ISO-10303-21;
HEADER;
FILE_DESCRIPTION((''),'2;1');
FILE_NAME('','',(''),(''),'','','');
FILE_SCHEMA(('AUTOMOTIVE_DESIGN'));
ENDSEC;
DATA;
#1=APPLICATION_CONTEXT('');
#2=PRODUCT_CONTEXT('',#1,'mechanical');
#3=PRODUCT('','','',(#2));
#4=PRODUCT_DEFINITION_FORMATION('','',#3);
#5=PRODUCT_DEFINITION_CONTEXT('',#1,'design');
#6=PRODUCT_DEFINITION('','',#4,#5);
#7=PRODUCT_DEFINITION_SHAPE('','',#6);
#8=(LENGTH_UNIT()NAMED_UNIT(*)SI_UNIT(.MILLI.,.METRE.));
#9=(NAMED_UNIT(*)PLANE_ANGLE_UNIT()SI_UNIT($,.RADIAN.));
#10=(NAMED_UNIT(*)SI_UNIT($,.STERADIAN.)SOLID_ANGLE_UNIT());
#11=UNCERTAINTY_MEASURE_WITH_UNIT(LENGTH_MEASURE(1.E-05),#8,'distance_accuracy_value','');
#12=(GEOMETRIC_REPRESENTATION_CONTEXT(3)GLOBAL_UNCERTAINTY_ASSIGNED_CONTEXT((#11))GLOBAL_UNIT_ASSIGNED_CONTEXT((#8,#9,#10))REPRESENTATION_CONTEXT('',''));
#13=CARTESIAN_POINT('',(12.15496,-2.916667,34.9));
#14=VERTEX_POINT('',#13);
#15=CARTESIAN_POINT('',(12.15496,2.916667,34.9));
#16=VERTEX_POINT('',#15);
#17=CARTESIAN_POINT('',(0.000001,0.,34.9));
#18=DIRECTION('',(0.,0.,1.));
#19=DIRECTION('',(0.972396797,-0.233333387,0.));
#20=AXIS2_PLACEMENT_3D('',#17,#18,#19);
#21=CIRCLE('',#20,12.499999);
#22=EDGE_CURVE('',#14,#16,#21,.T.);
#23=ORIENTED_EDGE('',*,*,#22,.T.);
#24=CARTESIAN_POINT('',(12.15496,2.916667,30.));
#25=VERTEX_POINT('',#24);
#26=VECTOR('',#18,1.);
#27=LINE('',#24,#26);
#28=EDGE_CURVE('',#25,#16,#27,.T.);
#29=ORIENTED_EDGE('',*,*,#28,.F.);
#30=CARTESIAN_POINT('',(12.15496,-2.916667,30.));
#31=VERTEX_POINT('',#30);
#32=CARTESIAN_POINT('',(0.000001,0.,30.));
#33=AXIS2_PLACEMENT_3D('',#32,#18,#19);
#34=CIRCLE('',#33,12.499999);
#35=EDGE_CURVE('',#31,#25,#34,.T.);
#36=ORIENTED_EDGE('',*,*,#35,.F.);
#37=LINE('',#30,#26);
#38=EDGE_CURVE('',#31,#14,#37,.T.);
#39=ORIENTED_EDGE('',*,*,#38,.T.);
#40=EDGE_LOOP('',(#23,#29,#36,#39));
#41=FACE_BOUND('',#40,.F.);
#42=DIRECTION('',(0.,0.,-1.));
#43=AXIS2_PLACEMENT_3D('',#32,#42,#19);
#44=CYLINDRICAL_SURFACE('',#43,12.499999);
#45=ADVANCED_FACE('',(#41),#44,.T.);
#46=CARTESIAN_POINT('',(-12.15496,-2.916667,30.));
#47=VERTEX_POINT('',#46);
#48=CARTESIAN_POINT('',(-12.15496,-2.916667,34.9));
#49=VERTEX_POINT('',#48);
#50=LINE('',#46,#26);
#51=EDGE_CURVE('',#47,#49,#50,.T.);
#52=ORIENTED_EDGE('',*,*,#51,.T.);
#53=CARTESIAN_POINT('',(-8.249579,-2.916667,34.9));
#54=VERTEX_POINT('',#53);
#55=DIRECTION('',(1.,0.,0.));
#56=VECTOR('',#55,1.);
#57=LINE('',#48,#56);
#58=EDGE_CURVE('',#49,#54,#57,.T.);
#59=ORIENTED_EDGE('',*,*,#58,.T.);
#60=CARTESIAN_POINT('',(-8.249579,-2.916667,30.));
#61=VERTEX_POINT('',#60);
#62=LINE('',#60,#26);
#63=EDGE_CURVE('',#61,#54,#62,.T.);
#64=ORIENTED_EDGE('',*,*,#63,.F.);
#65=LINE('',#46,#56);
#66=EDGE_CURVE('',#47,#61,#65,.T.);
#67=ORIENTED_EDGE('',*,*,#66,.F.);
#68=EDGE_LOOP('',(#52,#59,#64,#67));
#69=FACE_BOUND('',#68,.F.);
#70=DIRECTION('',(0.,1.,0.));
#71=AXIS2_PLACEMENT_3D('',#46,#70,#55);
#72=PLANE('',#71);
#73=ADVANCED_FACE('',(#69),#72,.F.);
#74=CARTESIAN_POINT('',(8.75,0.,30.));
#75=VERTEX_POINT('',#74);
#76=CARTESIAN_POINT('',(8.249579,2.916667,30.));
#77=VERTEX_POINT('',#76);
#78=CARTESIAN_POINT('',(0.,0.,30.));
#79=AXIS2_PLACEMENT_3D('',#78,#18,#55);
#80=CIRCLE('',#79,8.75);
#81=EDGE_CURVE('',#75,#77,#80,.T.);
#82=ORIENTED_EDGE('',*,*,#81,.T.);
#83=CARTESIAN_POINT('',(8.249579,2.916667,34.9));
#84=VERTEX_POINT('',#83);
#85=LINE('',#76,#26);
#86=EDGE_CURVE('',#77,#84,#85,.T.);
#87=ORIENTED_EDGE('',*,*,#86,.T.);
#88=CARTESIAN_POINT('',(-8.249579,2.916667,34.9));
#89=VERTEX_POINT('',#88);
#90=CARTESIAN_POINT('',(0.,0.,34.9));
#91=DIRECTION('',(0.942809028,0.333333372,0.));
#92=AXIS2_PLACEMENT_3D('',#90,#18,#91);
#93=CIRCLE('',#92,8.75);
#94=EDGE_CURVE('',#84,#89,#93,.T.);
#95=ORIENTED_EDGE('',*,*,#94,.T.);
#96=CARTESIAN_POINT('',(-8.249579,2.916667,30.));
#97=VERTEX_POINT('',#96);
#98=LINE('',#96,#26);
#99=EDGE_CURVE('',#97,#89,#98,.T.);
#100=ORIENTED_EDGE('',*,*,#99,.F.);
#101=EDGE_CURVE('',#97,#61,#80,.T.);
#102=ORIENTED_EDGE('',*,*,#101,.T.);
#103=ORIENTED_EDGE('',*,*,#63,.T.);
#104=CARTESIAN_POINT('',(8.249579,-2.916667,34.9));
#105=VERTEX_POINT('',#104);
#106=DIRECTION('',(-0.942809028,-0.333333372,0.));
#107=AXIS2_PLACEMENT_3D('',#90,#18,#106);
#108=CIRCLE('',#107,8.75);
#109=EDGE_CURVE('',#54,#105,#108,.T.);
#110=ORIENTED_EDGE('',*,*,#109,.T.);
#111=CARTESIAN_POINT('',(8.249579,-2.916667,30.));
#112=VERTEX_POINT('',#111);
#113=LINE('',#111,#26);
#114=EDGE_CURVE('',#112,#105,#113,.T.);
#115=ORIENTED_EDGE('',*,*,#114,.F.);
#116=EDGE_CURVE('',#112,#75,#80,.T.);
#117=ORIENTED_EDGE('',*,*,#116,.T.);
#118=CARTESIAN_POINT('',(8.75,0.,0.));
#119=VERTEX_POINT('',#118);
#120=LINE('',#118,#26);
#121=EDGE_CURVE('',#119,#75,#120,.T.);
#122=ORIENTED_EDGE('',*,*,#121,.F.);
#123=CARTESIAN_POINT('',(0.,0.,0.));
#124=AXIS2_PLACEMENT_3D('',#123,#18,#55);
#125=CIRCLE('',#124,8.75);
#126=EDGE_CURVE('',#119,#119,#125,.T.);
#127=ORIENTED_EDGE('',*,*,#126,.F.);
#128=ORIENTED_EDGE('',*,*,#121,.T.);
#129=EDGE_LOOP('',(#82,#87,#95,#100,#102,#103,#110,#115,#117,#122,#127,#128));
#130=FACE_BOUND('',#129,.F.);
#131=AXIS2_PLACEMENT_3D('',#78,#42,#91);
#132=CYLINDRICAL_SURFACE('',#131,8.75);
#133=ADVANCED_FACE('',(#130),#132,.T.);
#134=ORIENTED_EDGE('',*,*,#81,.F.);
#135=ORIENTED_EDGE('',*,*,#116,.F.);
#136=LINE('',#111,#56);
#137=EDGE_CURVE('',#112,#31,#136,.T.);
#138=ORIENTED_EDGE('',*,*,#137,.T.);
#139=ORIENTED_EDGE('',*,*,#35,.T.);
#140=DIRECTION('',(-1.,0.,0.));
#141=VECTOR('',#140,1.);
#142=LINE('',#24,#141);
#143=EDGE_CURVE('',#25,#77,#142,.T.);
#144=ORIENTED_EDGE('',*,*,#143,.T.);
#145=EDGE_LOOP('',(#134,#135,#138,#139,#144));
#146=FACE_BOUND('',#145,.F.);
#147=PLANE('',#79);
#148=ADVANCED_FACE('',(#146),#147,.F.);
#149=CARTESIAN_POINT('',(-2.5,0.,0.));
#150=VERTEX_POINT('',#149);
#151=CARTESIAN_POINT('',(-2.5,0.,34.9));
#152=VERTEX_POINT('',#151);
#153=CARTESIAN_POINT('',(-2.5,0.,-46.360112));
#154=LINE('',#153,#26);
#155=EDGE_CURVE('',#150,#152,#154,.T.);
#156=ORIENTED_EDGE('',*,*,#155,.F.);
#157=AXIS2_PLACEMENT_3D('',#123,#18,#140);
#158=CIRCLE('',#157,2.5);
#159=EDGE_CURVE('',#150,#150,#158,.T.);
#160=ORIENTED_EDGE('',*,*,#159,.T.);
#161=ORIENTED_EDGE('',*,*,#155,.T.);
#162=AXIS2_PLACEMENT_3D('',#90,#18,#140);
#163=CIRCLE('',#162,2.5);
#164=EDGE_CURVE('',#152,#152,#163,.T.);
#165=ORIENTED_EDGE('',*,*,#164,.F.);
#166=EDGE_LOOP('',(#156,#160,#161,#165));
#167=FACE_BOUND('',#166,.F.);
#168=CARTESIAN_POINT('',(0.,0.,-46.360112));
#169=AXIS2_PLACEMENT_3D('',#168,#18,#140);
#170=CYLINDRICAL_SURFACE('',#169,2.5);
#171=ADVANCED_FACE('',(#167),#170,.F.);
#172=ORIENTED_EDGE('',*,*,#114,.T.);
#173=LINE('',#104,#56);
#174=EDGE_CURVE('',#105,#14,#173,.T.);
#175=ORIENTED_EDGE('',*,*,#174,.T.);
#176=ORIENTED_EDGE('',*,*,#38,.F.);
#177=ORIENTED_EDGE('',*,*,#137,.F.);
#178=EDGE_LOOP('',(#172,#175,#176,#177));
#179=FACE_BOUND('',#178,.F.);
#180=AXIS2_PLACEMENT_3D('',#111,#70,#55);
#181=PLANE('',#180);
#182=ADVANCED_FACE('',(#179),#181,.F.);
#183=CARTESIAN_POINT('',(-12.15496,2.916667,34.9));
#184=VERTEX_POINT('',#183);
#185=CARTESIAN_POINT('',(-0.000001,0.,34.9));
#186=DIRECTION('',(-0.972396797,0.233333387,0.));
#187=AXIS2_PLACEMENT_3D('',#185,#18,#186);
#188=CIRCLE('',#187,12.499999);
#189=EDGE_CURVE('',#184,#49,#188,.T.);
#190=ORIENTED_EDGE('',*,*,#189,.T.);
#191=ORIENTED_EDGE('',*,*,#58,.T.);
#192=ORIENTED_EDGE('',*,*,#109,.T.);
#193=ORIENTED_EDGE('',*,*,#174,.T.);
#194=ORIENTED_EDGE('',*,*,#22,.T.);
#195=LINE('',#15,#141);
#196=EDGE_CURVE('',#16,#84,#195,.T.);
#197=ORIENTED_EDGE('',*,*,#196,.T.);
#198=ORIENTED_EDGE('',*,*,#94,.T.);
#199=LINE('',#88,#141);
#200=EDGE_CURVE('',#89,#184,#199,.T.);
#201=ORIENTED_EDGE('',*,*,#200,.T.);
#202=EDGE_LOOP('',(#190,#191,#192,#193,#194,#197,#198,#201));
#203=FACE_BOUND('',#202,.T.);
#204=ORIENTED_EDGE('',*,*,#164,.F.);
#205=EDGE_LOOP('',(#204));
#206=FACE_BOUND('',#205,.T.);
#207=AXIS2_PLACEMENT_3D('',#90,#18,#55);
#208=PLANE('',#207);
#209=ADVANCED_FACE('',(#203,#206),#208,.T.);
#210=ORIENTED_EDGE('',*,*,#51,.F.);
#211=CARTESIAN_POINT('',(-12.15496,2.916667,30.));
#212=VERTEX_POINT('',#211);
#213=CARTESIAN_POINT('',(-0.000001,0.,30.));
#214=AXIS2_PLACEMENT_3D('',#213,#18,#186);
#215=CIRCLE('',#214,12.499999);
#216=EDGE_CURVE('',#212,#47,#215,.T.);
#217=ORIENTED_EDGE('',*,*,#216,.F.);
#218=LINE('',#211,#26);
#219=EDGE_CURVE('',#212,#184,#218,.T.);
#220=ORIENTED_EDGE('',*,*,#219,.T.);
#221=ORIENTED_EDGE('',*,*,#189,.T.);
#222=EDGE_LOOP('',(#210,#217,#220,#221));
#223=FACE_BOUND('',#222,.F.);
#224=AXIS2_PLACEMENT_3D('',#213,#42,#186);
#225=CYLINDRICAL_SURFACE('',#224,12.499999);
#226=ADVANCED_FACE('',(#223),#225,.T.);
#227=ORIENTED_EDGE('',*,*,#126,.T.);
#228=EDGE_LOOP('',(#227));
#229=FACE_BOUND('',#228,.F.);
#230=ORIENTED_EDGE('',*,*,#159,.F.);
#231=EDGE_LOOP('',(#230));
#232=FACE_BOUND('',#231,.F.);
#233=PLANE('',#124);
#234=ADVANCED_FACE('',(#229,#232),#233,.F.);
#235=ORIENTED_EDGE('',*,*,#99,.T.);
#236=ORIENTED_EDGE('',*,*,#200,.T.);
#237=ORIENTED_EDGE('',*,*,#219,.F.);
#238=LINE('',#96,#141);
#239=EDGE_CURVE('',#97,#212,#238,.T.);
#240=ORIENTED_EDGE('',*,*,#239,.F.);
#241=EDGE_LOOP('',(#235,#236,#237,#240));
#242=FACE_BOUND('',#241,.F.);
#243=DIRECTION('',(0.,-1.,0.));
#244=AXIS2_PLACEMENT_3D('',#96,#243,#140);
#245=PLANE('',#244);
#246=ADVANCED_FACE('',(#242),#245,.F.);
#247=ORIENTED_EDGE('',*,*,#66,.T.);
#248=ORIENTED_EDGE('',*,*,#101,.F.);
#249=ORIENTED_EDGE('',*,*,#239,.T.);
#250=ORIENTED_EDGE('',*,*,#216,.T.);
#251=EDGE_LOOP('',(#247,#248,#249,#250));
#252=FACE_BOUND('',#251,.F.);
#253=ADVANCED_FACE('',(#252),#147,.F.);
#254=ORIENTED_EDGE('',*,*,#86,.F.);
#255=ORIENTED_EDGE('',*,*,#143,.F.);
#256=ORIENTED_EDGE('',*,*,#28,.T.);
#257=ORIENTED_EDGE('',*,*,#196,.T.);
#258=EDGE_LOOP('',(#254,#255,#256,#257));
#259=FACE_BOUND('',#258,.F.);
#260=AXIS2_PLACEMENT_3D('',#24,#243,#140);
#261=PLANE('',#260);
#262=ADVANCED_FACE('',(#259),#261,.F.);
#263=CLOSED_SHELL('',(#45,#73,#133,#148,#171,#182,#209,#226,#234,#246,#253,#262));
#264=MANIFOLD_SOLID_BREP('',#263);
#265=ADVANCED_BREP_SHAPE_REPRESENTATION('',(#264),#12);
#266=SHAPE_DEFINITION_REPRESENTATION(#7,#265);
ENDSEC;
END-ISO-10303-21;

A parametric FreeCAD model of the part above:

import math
import FreeCAD as App
import Part
import Sketcher
Q = App.Units.Quantity

doc = App.newDocument("Part")
params = doc.addObject("Spreadsheet::Sheet", "Params")
for row, (alias, value) in enumerate([
    ("sketch1_diameter", "17.5 mm"),
    ("pad1_length", "30 mm"),
    ("sketch2_radius", "12.499999 mm"),
    ("sketch2_radius2", "8.75 mm"),
    ("pad2_length", "4.9 mm"),
    ("sketch3_diameter", "5 mm"),
    ("hole_diameter", "5 mm"),
], start=1):
    params.set(f"A{row}", alias)
    params.set(f"B{row}", "=" + value)
    params.setAlias(f"B{row}", alias)

body = doc.addObject("PartDesign::Body", "Body")

# Sketch on XY plane
sketch1 = doc.addObject("Sketcher::SketchObject", "Sketch")
body.addObject(sketch1)
sketch1.AttachmentSupport = (doc.XY_Plane, [""])
sketch1.MapMode = "FlatFace"
sketch1.addGeometry(Part.Circle(App.Vector(0, 0, 0), App.Vector(0, 0, 1), 9), False)
sketch1.addConstraint(Sketcher.Constraint("Coincident", 0, 3, -1, 1))
sketch1.addConstraint(Sketcher.Constraint("Diameter", 0, Q("17.5 mm")))
sketch1.setExpression("Constraints[1]", "Params.sketch1_diameter")
pad1 = doc.addObject("PartDesign::Pad", "Pad")
body.addObject(pad1)
pad1.Profile = sketch1
pad1.setExpression("Length", "Params.pad1_length")

# Sketch on XY plane
sketch2 = doc.addObject("Sketcher::SketchObject", "Sketch001")
body.addObject(sketch2)
sketch2.AttachmentSupport = (doc.XY_Plane, [""])
sketch2.MapMode = "FlatFace"
sketch2.AttachmentOffset = App.Placement(App.Vector(0, 0, 30), App.Rotation())
sketch2.addGeometry(Part.ArcOfCircle(Part.Circle(App.Vector(0, 0, 0), App.Vector(0, 0, 1), 8.8), math.radians(19), math.radians(161)), False)
sketch2.addGeometry(Part.LineSegment(App.Vector(-8.2, 2.9, 0), App.Vector(-12.2, 2.9, 0)), False)
sketch2.addGeometry(Part.ArcOfCircle(Part.Circle(App.Vector(0, 0, 0), App.Vector(0, 0, 1), 12.5), math.radians(167), math.radians(193)), False)
sketch2.addGeometry(Part.LineSegment(App.Vector(-12.2, -2.9, 0), App.Vector(-8.2, -2.9, 0)), False)
sketch2.addGeometry(Part.ArcOfCircle(Part.Circle(App.Vector(0, 0, 0), App.Vector(0, 0, 1), 8.8), math.radians(-161), math.radians(-19)), False)
sketch2.addGeometry(Part.LineSegment(App.Vector(8.2, -2.9, 0), App.Vector(12.2, -2.9, 0)), False)
sketch2.addGeometry(Part.ArcOfCircle(Part.Circle(App.Vector(0, 0, 0), App.Vector(0, 0, 1), 12.5), math.radians(-13), math.radians(13)), False)
sketch2.addGeometry(Part.LineSegment(App.Vector(12.2, 2.9, 0), App.Vector(8.2, 2.9, 0)), False)
sketch2.addConstraint(Sketcher.Constraint("Coincident", 0, 2, 1, 1))
sketch2.addConstraint(Sketcher.Constraint("Coincident", 1, 2, 2, 1))
sketch2.addConstraint(Sketcher.Constraint("Coincident", 2, 2, 3, 1))
sketch2.addConstraint(Sketcher.Constraint("Coincident", 3, 2, 4, 1))
sketch2.addConstraint(Sketcher.Constraint("Coincident", 4, 2, 5, 1))
sketch2.addConstraint(Sketcher.Constraint("Coincident", 5, 2, 6, 1))
sketch2.addConstraint(Sketcher.Constraint("Coincident", 6, 2, 7, 1))
sketch2.addConstraint(Sketcher.Constraint("Coincident", 7, 2, 0, 1))
sketch2.addConstraint(Sketcher.Constraint("Horizontal", 1))
sketch2.addConstraint(Sketcher.Constraint("Horizontal", 3))
sketch2.addConstraint(Sketcher.Constraint("Horizontal", 5))
sketch2.addConstraint(Sketcher.Constraint("Horizontal", 7))
sketch2.addConstraint(Sketcher.Constraint("Coincident", 0, 3, -1, 1))
sketch2.addConstraint(Sketcher.Constraint("Coincident", 2, 3, -1, 1))
sketch2.addConstraint(Sketcher.Constraint("Coincident", 4, 3, -1, 1))
sketch2.addConstraint(Sketcher.Constraint("Coincident", 6, 3, -1, 1))
sketch2.addConstraint(Sketcher.Constraint("Equal", 0, 4))
sketch2.addConstraint(Sketcher.Constraint("Equal", 2, 6))
sketch2.addConstraint(Sketcher.Constraint("Horizontal", 3, 2, 4, 2))
sketch2.addConstraint(Sketcher.Constraint("Horizontal", 1, 2, 6, 2))
sketch2.addConstraint(Sketcher.Constraint("Vertical", 1, 2, 2, 2))
sketch2.addConstraint(Sketcher.Constraint("Radius", 2, Q("12.499999 mm")))
sketch2.addConstraint(Sketcher.Constraint("Radius", 0, Q("8.75 mm")))
sketch2.addConstraint(Sketcher.Constraint("DistanceX", 1, 2, 1, 1, Q("3.905381 mm")))
sketch2.setExpression("Constraints[21]", "Params.sketch2_radius")
sketch2.setExpression("Constraints[22]", "Params.sketch2_radius2")
pad2 = doc.addObject("PartDesign::Pad", "Pad001")
body.addObject(pad2)
pad2.Profile = sketch2
pad2.setExpression("Length", "Params.pad2_length")

# Sketch on XY plane
sketch3 = doc.addObject("Sketcher::SketchObject", "Sketch002")
body.addObject(sketch3)
sketch3.AttachmentSupport = (doc.XY_Plane, [""])
sketch3.MapMode = "FlatFace"
sketch3.addGeometry(Part.Circle(App.Vector(0, 0, 0), App.Vector(0, 0, 1), 2.5), False)
sketch3.addConstraint(Sketcher.Constraint("Coincident", 0, 3, -1, 1))
sketch3.addConstraint(Sketcher.Constraint("Diameter", 0, Q("5 mm")))
sketch3.setExpression("Constraints[1]", "Params.sketch3_diameter")
doc.recompute()
hole = doc.addObject("PartDesign::Hole", "Hole")
body.addObject(hole)
hole.Profile = sketch3
hole.ThreadType = "None"
hole.setExpression("Diameter", "Params.hole_diameter")
hole.DepthType = "ThroughAll"
hole.Reversed = True

doc.recompute()
